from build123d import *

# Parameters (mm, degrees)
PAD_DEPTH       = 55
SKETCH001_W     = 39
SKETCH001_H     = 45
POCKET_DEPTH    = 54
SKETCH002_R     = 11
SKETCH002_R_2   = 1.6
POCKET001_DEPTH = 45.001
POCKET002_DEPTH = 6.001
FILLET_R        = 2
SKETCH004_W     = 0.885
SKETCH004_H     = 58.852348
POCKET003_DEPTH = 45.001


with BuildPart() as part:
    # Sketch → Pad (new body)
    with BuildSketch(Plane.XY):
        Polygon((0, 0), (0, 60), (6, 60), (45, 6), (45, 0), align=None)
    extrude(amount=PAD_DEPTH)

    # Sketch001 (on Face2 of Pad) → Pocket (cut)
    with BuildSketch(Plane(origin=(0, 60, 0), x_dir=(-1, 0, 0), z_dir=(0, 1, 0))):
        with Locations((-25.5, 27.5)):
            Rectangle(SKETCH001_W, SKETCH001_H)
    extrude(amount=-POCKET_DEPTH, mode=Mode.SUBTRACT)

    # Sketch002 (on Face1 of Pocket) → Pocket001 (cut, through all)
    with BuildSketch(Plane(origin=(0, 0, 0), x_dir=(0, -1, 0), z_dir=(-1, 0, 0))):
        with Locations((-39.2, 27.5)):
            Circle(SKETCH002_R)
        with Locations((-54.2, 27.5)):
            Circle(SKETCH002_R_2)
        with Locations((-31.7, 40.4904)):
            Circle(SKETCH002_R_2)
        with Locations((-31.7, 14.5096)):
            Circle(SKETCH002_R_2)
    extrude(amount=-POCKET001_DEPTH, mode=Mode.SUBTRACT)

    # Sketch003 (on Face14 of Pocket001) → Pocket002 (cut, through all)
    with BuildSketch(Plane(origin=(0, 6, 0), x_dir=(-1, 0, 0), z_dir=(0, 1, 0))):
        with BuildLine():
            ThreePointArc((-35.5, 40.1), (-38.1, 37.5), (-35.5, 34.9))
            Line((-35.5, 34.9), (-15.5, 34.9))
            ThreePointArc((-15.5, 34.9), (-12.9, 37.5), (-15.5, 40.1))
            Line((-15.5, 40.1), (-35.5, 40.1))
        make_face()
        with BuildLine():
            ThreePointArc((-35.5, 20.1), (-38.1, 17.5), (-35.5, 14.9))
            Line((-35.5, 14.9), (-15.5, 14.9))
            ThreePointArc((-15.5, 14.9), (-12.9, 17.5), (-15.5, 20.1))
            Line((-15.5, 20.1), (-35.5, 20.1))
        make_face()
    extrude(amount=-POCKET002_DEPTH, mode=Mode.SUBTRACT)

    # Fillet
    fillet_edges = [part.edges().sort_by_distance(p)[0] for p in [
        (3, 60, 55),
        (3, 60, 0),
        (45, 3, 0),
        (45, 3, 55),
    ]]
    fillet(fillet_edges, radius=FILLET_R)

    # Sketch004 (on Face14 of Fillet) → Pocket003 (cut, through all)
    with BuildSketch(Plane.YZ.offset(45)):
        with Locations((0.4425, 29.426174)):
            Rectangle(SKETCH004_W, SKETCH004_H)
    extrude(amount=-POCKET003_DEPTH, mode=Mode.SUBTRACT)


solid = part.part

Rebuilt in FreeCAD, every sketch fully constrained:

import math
import FreeCAD as App
import Part
import Sketcher


def edges_at(feature, points):
    """Names of the edges that pass closest to the given points."""
    edges = feature.Shape.Edges
    near = lambda p: min(range(len(edges)), key=lambda i: edges[i].distToShape(Part.Vertex(*p))[0])
    return sorted({f"Edge{near(p) + 1}" for p in points})

doc = App.newDocument("Part")
body = doc.addObject("PartDesign::Body", "Body")

# Sketch on XY plane
sketch1 = body.newObject("Sketcher::SketchObject", "Sketch")
sketch1.AttachmentSupport = (doc.getObject("XY_Plane"), [""])
sketch1.MapMode = "FlatFace"
sketch1.addGeometry(Part.LineSegment(App.Vector(0, 60, 0), App.Vector(0, 0, 0)), False)
sketch1.addGeometry(Part.LineSegment(App.Vector(0, 0, 0), App.Vector(45, 0, 0)), False)
sketch1.addGeometry(Part.LineSegment(App.Vector(45, 0, 0), App.Vector(45, 6, 0)), False)
sketch1.addGeometry(Part.LineSegment(App.Vector(45, 6, 0), App.Vector(6, 60, 0)), False)
sketch1.addGeometry(Part.LineSegment(App.Vector(6, 60, 0), App.Vector(0, 60, 0)), False)
sketch1.addConstraint(Sketcher.Constraint("Coincident", 0, 2, 1, 1))
sketch1.addConstraint(Sketcher.Constraint("Coincident", 1, 2, 2, 1))
sketch1.addConstraint(Sketcher.Constraint("Coincident", 2, 2, 3, 1))
sketch1.addConstraint(Sketcher.Constraint("Coincident", 3, 2, 4, 1))
sketch1.addConstraint(Sketcher.Constraint("Coincident", 4, 2, 0, 1))
sketch1.addConstraint(Sketcher.Constraint("Vertical", 0))
sketch1.addConstraint(Sketcher.Constraint("Horizontal", 1))
sketch1.addConstraint(Sketcher.Constraint("Vertical", 2))
sketch1.addConstraint(Sketcher.Constraint("Horizontal", 4))
sketch1.addConstraint(Sketcher.Constraint("Coincident", 0, 2, -1, 1))
sketch1.addConstraint(Sketcher.Constraint("Equal", 4, 2))
sketch1.addConstraint(Sketcher.Constraint("DistanceX", 1, 1, 1, 2, 45.0))
sketch1.addConstraint(Sketcher.Constraint("DistanceX", 4, 2, 4, 1, 6.0))
sketch1.addConstraint(Sketcher.Constraint("DistanceY", 0, 2, 0, 1, 60.0))
pad1 = body.newObject("PartDesign::Pad", "Pad")
pad1.Profile = sketch1
pad1.Length = 55

# Sketch on XZ plane
sketch2 = body.newObject("Sketcher::SketchObject", "Sketch001")
sketch2.AttachmentSupport = (doc.getObject("XZ_Plane"), [""])
sketch2.MapMode = "FlatFace"
sketch2.AttachmentOffset = App.Placement(App.Vector(0, 0, -60), App.Rotation())
sketch2.addGeometry(Part.LineSegment(App.Vector(45, 50, 0), App.Vector(45, 5, 0)), False)
sketch2.addGeometry(Part.LineSegment(App.Vector(45, 5, 0), App.Vector(6, 5, 0)), False)
sketch2.addGeometry(Part.LineSegment(App.Vector(6, 5, 0), App.Vector(6, 50, 0)), False)
sketch2.addGeometry(Part.LineSegment(App.Vector(6, 50, 0), App.Vector(45, 50, 0)), False)
sketch2.addConstraint(Sketcher.Constraint("Coincident", 0, 2, 1, 1))
sketch2.addConstraint(Sketcher.Constraint("Coincident", 1, 2, 2, 1))
sketch2.addConstraint(Sketcher.Constraint("Coincident", 2, 2, 3, 1))
sketch2.addConstraint(Sketcher.Constraint("Coincident", 3, 2, 0, 1))
sketch2.addConstraint(Sketcher.Constraint("Vertical", 0))
sketch2.addConstraint(Sketcher.Constraint("Horizontal", 1))
sketch2.addConstraint(Sketcher.Constraint("Vertical", 2))
sketch2.addConstraint(Sketcher.Constraint("Horizontal", 3))
sketch2.addConstraint(Sketcher.Constraint("DistanceX", 1, 2, 1, 1, 39.0))
sketch2.addConstraint(Sketcher.Constraint("DistanceY", 0, 2, 0, 1, 45.0))
sketch2.addConstraint(Sketcher.Constraint("DistanceX", -1, 1, 0, 2, 45.0))
sketch2.addConstraint(Sketcher.Constraint("DistanceY", -1, 1, 0, 2, 5.0))
pocket1 = body.newObject("PartDesign::Pocket", "Pocket")
pocket1.Profile = sketch2
pocket1.Length = 54
pocket1.Reversed = True

# Sketch on YZ plane
sketch3 = body.newObject("Sketcher::SketchObject", "Sketch002")
sketch3.AttachmentSupport = (doc.getObject("YZ_Plane"), [""])
sketch3.MapMode = "FlatFace"
sketch3.addGeometry(Part.Circle(App.Vector(39.2, 27.5, 0), App.Vector(0, 0, 1), 11), False)
sketch3.addGeometry(Part.Circle(App.Vector(54.2, 27.5, 0), App.Vector(0, 0, 1), 1.6), False)
sketch3.addGeometry(Part.Circle(App.Vector(31.7, 40.4904, 0), App.Vector(0, 0, 1), 1.6), False)
sketch3.addGeometry(Part.Circle(App.Vector(31.7, 14.5096, 0), App.Vector(0, 0, 1), 1.6), False)
sketch3.addConstraint(Sketcher.Constraint("Equal", 1, 2))
sketch3.addConstraint(Sketcher.Constraint("Equal", 2, 3))
sketch3.addConstraint(Sketcher.Constraint("Horizontal", 0, 3, 1, 3))
sketch3.addConstraint(Sketcher.Constraint("Vertical", 2, 3, 3, 3))
sketch3.addConstraint(Sketcher.Constraint("Diameter", 0, 22.0))
sketch3.addConstraint(Sketcher.Constraint("Diameter", 1, 3.2))
sketch3.addConstraint(Sketcher.Constraint("DistanceX", 0, 3, 1, 3, 15.0))
sketch3.addConstraint(Sketcher.Constraint("DistanceX", -1, 1, 0, 3, 39.2))
sketch3.addConstraint(Sketcher.Constraint("DistanceY", -1, 1, 0, 3, 27.5))
sketch3.addConstraint(Sketcher.Constraint("DistanceX", -1, 1, 2, 3, 31.7))
sketch3.addConstraint(Sketcher.Constraint("DistanceY", -1, 1, 2, 3, 40.4904))
sketch3.addConstraint(Sketcher.Constraint("DistanceY", -1, 1, 3, 3, 14.5096))
pocket2 = body.newObject("PartDesign::Pocket", "Pocket001")
pocket2.Profile = sketch3
pocket2.Type = "ThroughAll"
pocket2.Reversed = True

# Sketch on XZ plane
sketch4 = body.newObject("Sketcher::SketchObject", "Sketch003")
sketch4.AttachmentSupport = (doc.getObject("XZ_Plane"), [""])
sketch4.MapMode = "FlatFace"
sketch4.AttachmentOffset = App.Placement(App.Vector(0, 0, -6), App.Rotation())
sketch4.addGeometry(Part.ArcOfCircle(Part.Circle(App.Vector(35.5, 37.5, 0), App.Vector(0, 0, 1), 2.6), math.radians(-90), math.radians(90)), False)
sketch4.addGeometry(Part.LineSegment(App.Vector(35.5, 34.9, 0), App.Vector(15.5, 34.9, 0)), False)
sketch4.addGeometry(Part.ArcOfCircle(Part.Circle(App.Vector(15.5, 37.5, 0), App.Vector(0, 0, 1), 2.6), math.radians(90), math.radians(270)), False)
sketch4.addGeometry(Part.LineSegment(App.Vector(15.5, 40.1, 0), App.Vector(35.5, 40.1, 0)), False)
sketch4.addGeometry(Part.ArcOfCircle(Part.Circle(App.Vector(35.5, 17.5, 0), App.Vector(0, 0, 1), 2.6), math.radians(-90), math.radians(90)), False)
sketch4.addGeometry(Part.LineSegment(App.Vector(35.5, 14.9, 0), App.Vector(15.5, 14.9, 0)), False)
sketch4.addGeometry(Part.ArcOfCircle(Part.Circle(App.Vector(15.5, 17.5, 0), App.Vector(0, 0, 1), 2.6), math.radians(90), math.radians(270)), False)
sketch4.addGeometry(Part.LineSegment(App.Vector(15.5, 20.1, 0), App.Vector(35.5, 20.1, 0)), False)
sketch4.addConstraint(Sketcher.Constraint("Tangent", 0, 1, 1, 1))
sketch4.addConstraint(Sketcher.Constraint("Tangent", 1, 2, 2, 2))
sketch4.addConstraint(Sketcher.Constraint("Tangent", 2, 1, 3, 1))
sketch4.addConstraint(Sketcher.Constraint("Tangent", 3, 2, 0, 2))
sketch4.addConstraint(Sketcher.Constraint("Tangent", 4, 1, 5, 1))
sketch4.addConstraint(Sketcher.Constraint("Tangent", 5, 2, 6, 2))
sketch4.addConstraint(Sketcher.Constraint("Tangent", 6, 1, 7, 1))
sketch4.addConstraint(Sketcher.Constraint("Tangent", 7, 2, 4, 2))
sketch4.addConstraint(Sketcher.Constraint("Horizontal", 1))
sketch4.addConstraint(Sketcher.Constraint("Horizontal", 3))
sketch4.addConstraint(Sketcher.Constraint("Horizontal", 5))
sketch4.addConstraint(Sketcher.Constraint("Horizontal", 7))
sketch4.addConstraint(Sketcher.Constraint("Equal", 2, 4))
sketch4.addConstraint(Sketcher.Constraint("Vertical", 0, 3, 4, 3))
sketch4.addConstraint(Sketcher.Constraint("Vertical", 2, 3, 6, 3))
sketch4.addConstraint(Sketcher.Constraint("Radius", 0, 2.6))
sketch4.addConstraint(Sketcher.Constraint("DistanceX", 1, 2, 1, 1, 20.0))
sketch4.addConstraint(Sketcher.Constraint("DistanceY", 4, 3, 0, 3, 20.0))
sketch4.addConstraint(Sketcher.Constraint("DistanceX", -1, 1, 0, 3, 35.5))
sketch4.addConstraint(Sketcher.Constraint("DistanceY", -1, 1, 0, 3, 37.5))
pocket3 = body.newObject("PartDesign::Pocket", "Pocket002")
pocket3.Profile = sketch4
pocket3.Type = "ThroughAll"
pocket3.Reversed = True
doc.recompute()

fillet = body.newObject("PartDesign::Fillet", "Fillet")
fillet.Base = (pocket3, edges_at(pocket3, [
    (3, 60, 55),
    (3, 60, 0),
    (45, 3, 0),
    (45, 3, 55),
]))
fillet.Radius = 2

# Sketch on YZ plane
sketch5 = body.newObject("Sketcher::SketchObject", "Sketch004")
sketch5.AttachmentSupport = (doc.getObject("YZ_Plane"), [""])
sketch5.MapMode = "FlatFace"
sketch5.AttachmentOffset = App.Placement(App.Vector(0, 0, 45), App.Rotation())
sketch5.addGeometry(Part.LineSegment(App.Vector(0, 58.852348, 0), App.Vector(0, 0, 0)), False)
sketch5.addGeometry(Part.LineSegment(App.Vector(0, 0, 0), App.Vector(0.885, 0, 0)), False)
sketch5.addGeometry(Part.LineSegment(App.Vector(0.885, 0, 0), App.Vector(0.885, 58.852348, 0)), False)
sketch5.addGeometry(Part.LineSegment(App.Vector(0.885, 58.852348, 0), App.Vector(0, 58.852348, 0)), False)
sketch5.addConstraint(Sketcher.Constraint("Coincident", 0, 2, 1, 1))
sketch5.addConstraint(Sketcher.Constraint("Coincident", 1, 2, 2, 1))
sketch5.addConstraint(Sketcher.Constraint("Coincident", 2, 2, 3, 1))
sketch5.addConstraint(Sketcher.Constraint("Coincident", 3, 2, 0, 1))
sketch5.addConstraint(Sketcher.Constraint("Vertical", 0))
sketch5.addConstraint(Sketcher.Constraint("Horizontal", 1))
sketch5.addConstraint(Sketcher.Constraint("Vertical", 2))
sketch5.addConstraint(Sketcher.Constraint("Horizontal", 3))
sketch5.addConstraint(Sketcher.Constraint("Coincident", 0, 2, -1, 1))
sketch5.addConstraint(Sketcher.Constraint("DistanceX", 1, 1, 1, 2, 0.885))
sketch5.addConstraint(Sketcher.Constraint("DistanceY", 0, 2, 0, 1, 58.852348))
pocket4 = body.newObject("PartDesign::Pocket", "Pocket003")
pocket4.Profile = sketch5
pocket4.Type = "ThroughAll"

doc.recompute()
